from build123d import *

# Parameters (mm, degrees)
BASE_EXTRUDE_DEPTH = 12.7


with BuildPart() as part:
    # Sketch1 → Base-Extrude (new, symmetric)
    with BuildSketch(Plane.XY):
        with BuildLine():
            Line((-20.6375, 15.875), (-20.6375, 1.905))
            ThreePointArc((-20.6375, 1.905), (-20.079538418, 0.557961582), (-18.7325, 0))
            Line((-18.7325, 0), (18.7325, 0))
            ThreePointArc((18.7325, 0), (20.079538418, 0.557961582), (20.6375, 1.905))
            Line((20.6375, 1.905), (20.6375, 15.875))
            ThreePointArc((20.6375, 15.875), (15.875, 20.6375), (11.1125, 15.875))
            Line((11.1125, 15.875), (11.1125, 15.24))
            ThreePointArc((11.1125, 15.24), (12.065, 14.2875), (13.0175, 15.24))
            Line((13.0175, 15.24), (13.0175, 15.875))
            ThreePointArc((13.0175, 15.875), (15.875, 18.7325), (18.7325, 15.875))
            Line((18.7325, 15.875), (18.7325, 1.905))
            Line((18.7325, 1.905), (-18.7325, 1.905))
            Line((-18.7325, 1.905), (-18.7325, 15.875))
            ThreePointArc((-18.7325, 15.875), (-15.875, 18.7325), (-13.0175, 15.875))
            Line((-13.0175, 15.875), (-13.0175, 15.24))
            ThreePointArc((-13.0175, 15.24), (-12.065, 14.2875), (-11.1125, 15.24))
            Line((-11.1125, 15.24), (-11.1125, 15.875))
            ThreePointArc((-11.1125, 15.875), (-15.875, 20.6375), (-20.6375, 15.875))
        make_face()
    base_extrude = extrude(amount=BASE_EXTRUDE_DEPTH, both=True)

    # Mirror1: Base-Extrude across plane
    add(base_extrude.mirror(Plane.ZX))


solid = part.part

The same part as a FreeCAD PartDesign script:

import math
import FreeCAD as App
import Part
import Sketcher
from FreeCAD import Vector
Q = App.Units.Quantity

doc = App.newDocument("Part")
body = doc.addObject("PartDesign::Body", "Body")

# Sketch on XY plane
sketch1 = body.newObject("Sketcher::SketchObject", "Sketch")
sketch1.AttachmentSupport = (doc.getObject("XY_Plane"), [""])
sketch1.MapMode = "FlatFace"
sketch1.addGeometry([
    Part.LineSegment(Vector(-20.6375, 15.875, 0), Vector(-20.6375, 1.905, 0)),  # 0
    Part.ArcOfCircle(Part.Circle(Vector(-18.7325, 1.905, 0), Vector(0, 0, 1), 1.905), math.radians(-180), math.radians(-90)),  # 1
    Part.LineSegment(Vector(-18.7325, 0, 0), Vector(18.7325, 0, 0)),  # 2
    Part.ArcOfCircle(Part.Circle(Vector(18.7325, 1.905, 0), Vector(0, 0, 1), 1.905), math.radians(-90), math.radians(0)),  # 3
    Part.LineSegment(Vector(20.6375, 1.905, 0), Vector(20.6375, 15.875, 0)),  # 4
    Part.ArcOfCircle(Part.Circle(Vector(15.875, 15.875, 0), Vector(0, 0, 1), 4.7625), math.radians(0), math.radians(180)),  # 5
    Part.LineSegment(Vector(11.1125, 15.875, 0), Vector(11.1125, 15.24, 0)),  # 6
    Part.ArcOfCircle(Part.Circle(Vector(12.065, 15.24, 0), Vector(0, 0, 1), 0.9525), math.radians(180), math.radians(360)),  # 7
    Part.LineSegment(Vector(13.0175, 15.24, 0), Vector(13.0175, 15.875, 0)),  # 8
    Part.ArcOfCircle(Part.Circle(Vector(15.875, 15.875, 0), Vector(0, 0, 1), 2.8575), math.radians(0), math.radians(180)),  # 9
    Part.LineSegment(Vector(18.7325, 15.875, 0), Vector(18.7325, 1.905, 0)),  # 10
    Part.LineSegment(Vector(18.7325, 1.905, 0), Vector(-18.7325, 1.905, 0)),  # 11
    Part.LineSegment(Vector(-18.7325, 1.905, 0), Vector(-18.7325, 15.875, 0)),  # 12
    Part.ArcOfCircle(Part.Circle(Vector(-15.875, 15.875, 0), Vector(0, 0, 1), 2.8575), math.radians(0), math.radians(180)),  # 13
    Part.LineSegment(Vector(-13.0175, 15.875, 0), Vector(-13.0175, 15.24, 0)),  # 14
    Part.ArcOfCircle(Part.Circle(Vector(-12.065, 15.24, 0), Vector(0, 0, 1), 0.9525), math.radians(180), math.radians(360)),  # 15
    Part.LineSegment(Vector(-11.1125, 15.24, 0), Vector(-11.1125, 15.875, 0)),  # 16
    Part.ArcOfCircle(Part.Circle(Vector(-15.875, 15.875, 0), Vector(0, 0, 1), 4.7625), math.radians(0), math.radians(180)),  # 17
], False)
sketch1.addConstraint([
    Sketcher.Constraint("Tangent", 0, 2, 1, 1),
    Sketcher.Constraint("Tangent", 1, 2, 2, 1),
    Sketcher.Constraint("Tangent", 2, 2, 3, 1),
    Sketcher.Constraint("Tangent", 3, 2, 4, 1),
    Sketcher.Constraint("Tangent", 4, 2, 5, 1),
    Sketcher.Constraint("Tangent", 5, 2, 6, 1),
    Sketcher.Constraint("Tangent", 6, 2, 7, 1),
    Sketcher.Constraint("Tangent", 7, 2, 8, 1),
    Sketcher.Constraint("Tangent", 8, 2, 9, 2),
    Sketcher.Constraint("Tangent", 9, 1, 10, 1),
    Sketcher.Constraint("Coincident", 10, 2, 11, 1),
    Sketcher.Constraint("Coincident", 11, 2, 12, 1),
    Sketcher.Constraint("Tangent", 12, 2, 13, 2),
    Sketcher.Constraint("Tangent", 13, 1, 14, 1),
    Sketcher.Constraint("Tangent", 14, 2, 15, 1),
    Sketcher.Constraint("Tangent", 15, 2, 16, 1),
    Sketcher.Constraint("Tangent", 16, 2, 17, 1),
    Sketcher.Constraint("Tangent", 17, 2, 0, 1),
    Sketcher.Constraint("Vertical", 0),
    Sketcher.Constraint("Horizontal", 2),
    Sketcher.Constraint("Vertical", 4),
    Sketcher.Constraint("Vertical", 6),
    Sketcher.Constraint("Vertical", 8),
    Sketcher.Constraint("Vertical", 10),
    Sketcher.Constraint("Horizontal", 11),
    Sketcher.Constraint("Vertical", 12),
    Sketcher.Constraint("Vertical", 14),
    Sketcher.Constraint("Vertical", 16),
    Sketcher.Constraint("Coincident", 9, 3, 5, 3),
    Sketcher.Constraint("Coincident", 17, 3, 13, 3),
    Sketcher.Constraint("Coincident", 10, 2, 3, 3),
    Sketcher.Constraint("Coincident", 11, 2, 1, 3),
    Sketcher.Constraint("Equal", 9, 13),
    Sketcher.Constraint("Symmetric", 1, 2, 2, 2, -1, 1),
    Sketcher.Constraint("Horizontal", 9, 3, 13, 3),
    Sketcher.Constraint("Horizontal", 7, 3, 15, 3),
    Sketcher.Constraint("Radius", 1, Q("0.075 in")),
    Sketcher.Constraint("Radius", 5, Q("0.1875 in")),
    Sketcher.Constraint("DistanceY", 0, 2, 0, 1, Q("0.55 in")),
    Sketcher.Constraint("DistanceY", -1, 1, 7, 3, Q("0.6 in")),
    Sketcher.Constraint("DistanceX", 13, 3, 7, 3, Q("1.1 in")),
])
pad1 = body.newObject("PartDesign::Pad", "Pad")
pad1.Profile = sketch1
pad1.Length = Q("1 in")
pad1.Midplane = True
doc.recompute()

mirrored = body.newObject("PartDesign::Mirrored", "Mirrored")
mirrored.Originals = [pad1]
mirrored.MirrorPlane = (doc.getObject("XZ_Plane"), [""])
body.Tip = mirrored

doc.recompute()
